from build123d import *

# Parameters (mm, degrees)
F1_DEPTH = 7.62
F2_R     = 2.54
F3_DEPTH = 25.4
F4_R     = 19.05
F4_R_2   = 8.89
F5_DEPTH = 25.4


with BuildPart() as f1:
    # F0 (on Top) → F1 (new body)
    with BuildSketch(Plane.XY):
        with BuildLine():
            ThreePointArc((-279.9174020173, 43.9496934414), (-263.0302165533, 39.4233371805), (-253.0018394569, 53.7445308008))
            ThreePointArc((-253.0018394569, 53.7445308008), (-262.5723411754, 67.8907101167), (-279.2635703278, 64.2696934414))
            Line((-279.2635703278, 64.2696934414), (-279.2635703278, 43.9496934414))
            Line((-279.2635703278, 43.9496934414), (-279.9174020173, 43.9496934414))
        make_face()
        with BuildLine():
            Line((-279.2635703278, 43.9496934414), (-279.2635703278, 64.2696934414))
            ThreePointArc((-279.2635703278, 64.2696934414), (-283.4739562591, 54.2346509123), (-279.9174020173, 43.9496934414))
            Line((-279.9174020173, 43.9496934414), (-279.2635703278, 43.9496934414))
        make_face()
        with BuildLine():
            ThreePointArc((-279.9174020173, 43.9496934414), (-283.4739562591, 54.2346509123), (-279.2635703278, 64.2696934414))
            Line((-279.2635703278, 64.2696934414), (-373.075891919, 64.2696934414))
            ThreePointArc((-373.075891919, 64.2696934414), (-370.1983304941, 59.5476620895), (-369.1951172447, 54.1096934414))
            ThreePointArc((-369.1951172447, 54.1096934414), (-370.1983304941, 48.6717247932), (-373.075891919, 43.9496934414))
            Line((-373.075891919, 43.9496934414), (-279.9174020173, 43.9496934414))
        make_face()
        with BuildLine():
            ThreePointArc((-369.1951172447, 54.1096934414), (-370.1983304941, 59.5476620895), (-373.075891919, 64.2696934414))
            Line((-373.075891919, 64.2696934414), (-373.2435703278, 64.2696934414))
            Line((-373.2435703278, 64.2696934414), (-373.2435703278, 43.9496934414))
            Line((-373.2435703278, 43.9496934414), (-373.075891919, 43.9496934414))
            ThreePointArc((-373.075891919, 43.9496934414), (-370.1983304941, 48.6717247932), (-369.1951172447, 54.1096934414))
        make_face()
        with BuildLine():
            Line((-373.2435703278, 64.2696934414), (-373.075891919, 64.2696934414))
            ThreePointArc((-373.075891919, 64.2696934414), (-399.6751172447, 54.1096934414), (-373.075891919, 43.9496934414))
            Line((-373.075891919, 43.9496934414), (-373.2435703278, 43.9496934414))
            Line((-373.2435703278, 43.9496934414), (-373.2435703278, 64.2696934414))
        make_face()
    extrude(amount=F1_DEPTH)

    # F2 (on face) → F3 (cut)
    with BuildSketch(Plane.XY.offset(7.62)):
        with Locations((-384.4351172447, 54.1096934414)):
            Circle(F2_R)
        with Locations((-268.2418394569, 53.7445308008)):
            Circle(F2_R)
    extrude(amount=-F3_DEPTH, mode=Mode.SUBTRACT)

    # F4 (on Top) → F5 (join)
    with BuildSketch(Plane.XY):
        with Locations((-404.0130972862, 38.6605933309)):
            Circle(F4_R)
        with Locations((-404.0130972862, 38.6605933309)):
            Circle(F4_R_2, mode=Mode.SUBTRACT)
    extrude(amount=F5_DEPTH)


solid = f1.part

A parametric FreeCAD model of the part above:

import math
import FreeCAD as App
import Part
import Sketcher
Q = App.Units.Quantity

doc = App.newDocument("Part")
params = doc.addObject("Spreadsheet::Sheet", "Params")
for row, (alias, value) in enumerate([
    ("sketch1_radius", "0.6 in"),
    ("pad1_length", "0.3 in"),
    ("sketch2_diameter", "0.2 in"),
    ("pocket1_length", "1 in"),
    ("sketch3_diameter", "1.5 in"),
    ("sketch3_diameter2", "0.7 in"),
    ("pad2_length", "1 in"),
], start=1):
    params.set(f"A{row}", alias)
    params.set(f"B{row}", "=" + value)
    params.setAlias(f"B{row}", alias)

body = doc.addObject("PartDesign::Body", "Body")

# Sketch on XY plane
sketch1 = body.newObject("Sketcher::SketchObject", "Sketch")
sketch1.AttachmentSupport = (doc.getObject("XY_Plane"), [""])
sketch1.MapMode = "FlatFace"
sketch1.addGeometry(Part.ArcOfCircle(Part.Circle(App.Vector(-268, 54, 0), App.Vector(0, 0, 1), 15), math.radians(0), math.radians(136)), False)
sketch1.addGeometry(Part.LineSegment(App.Vector(-279, 64, 0), App.Vector(-373, 64, 0)), False)
sketch1.addGeometry(Part.ArcOfCircle(Part.Circle(App.Vector(-384, 54, 0), App.Vector(0, 0, 1), 15), math.radians(42), math.radians(318)), False)
sketch1.addGeometry(Part.LineSegment(App.Vector(-373, 44, 0), App.Vector(-280, 44, 0)), False)
sketch1.addGeometry(Part.ArcOfCircle(Part.Circle(App.Vector(-268, 54, 0), App.Vector(0, 0, 1), 15), math.radians(-140), math.radians(0)), False)
sketch1.addConstraint(Sketcher.Constraint("Coincident", 0, 2, 1, 1))
sketch1.addConstraint(Sketcher.Constraint("Coincident", 1, 2, 2, 1))
sketch1.addConstraint(Sketcher.Constraint("Coincident", 2, 2, 3, 1))
sketch1.addConstraint(Sketcher.Constraint("Coincident", 3, 2, 4, 1))
sketch1.addConstraint(Sketcher.Constraint("Tangent", 4, 2, 0, 1))
sketch1.addConstraint(Sketcher.Constraint("Horizontal", 1))
sketch1.addConstraint(Sketcher.Constraint("Horizontal", 3))
sketch1.addConstraint(Sketcher.Constraint("Equal", 0, 2))
sketch1.addConstraint(Sketcher.Constraint("Equal", 2, 4))
sketch1.addConstraint(Sketcher.Constraint("Horizontal", 0, 3, 4, 2))
sketch1.addConstraint(Sketcher.Constraint("Vertical", 1, 2, 2, 2))
sketch1.addConstraint(Sketcher.Constraint("Radius", 0, Q("0.6 in")))
sketch1.addConstraint(Sketcher.Constraint("DistanceY", 2, 3, 0, 2, Q("0.4 in")))
sketch1.addConstraint(Sketcher.Constraint("DistanceX", 1, 2, 1, 1, 93.812322))
sketch1.addConstraint(Sketcher.Constraint("DistanceX", 3, 1, 3, 2, 93.15849))
sketch1.addConstraint(Sketcher.Constraint("DistanceX", 0, 3, -1, 1, 268.241839))
sketch1.addConstraint(Sketcher.Constraint("DistanceY", -1, 1, 0, 3, 53.744531))
sketch1.setExpression("Constraints[11]", "Params.sketch1_radius")
pad1 = body.newObject("PartDesign::Pad", "Pad")
pad1.Profile = sketch1
pad1.setExpression("Length", "Params.pad1_length")

# Sketch on XY plane
sketch2 = body.newObject("Sketcher::SketchObject", "Sketch001")
sketch2.AttachmentSupport = (doc.getObject("XY_Plane"), [""])
sketch2.MapMode = "FlatFace"
sketch2.AttachmentOffset = App.Placement(App.Vector(0, 0, 0.3 * 25.4), App.Rotation())
sketch2.addGeometry(Part.Circle(App.Vector(-384.4, 54.1, 0), App.Vector(0, 0, 1), 2.5), False)
sketch2.addGeometry(Part.Circle(App.Vector(-268.2, 53.7, 0), App.Vector(0, 0, 1), 2.5), False)
sketch2.addConstraint(Sketcher.Constraint("Equal", 0, 1))
sketch2.addConstraint(Sketcher.Constraint("Diameter", 0, Q("0.2 in")))
sketch2.addConstraint(Sketcher.Constraint("DistanceX", 1, 3, -1, 1, 268.241839))
sketch2.addConstraint(Sketcher.Constraint("DistanceY", -1, 1, 1, 3, 53.744531))
sketch2.addConstraint(Sketcher.Constraint("DistanceX", 0, 3, -1, 1, 384.435117))
sketch2.addConstraint(Sketcher.Constraint("DistanceY", -1, 1, 0, 3, 54.109693))
sketch2.setExpression("Constraints[1]", "Params.sketch2_diameter")
pocket1 = body.newObject("PartDesign::Pocket", "Pocket")
pocket1.Profile = sketch2
pocket1.setExpression("Length", "Params.pocket1_length")

# Sketch on XY plane
sketch3 = body.newObject("Sketcher::SketchObject", "Sketch002")
sketch3.AttachmentSupport = (doc.getObject("XY_Plane"), [""])
sketch3.MapMode = "FlatFace"
sketch3.addGeometry(Part.Circle(App.Vector(-404, 39, 0), App.Vector(0, 0, 1), 19), False)
sketch3.addGeometry(Part.Circle(App.Vector(-404, 39, 0), App.Vector(0, 0, 1), 9), False)
sketch3.addConstraint(Sketcher.Constraint("Coincident", 1, 3, 0, 3))
sketch3.addConstraint(Sketcher.Constraint("Diameter", 0, Q("1.5 in")))
sketch3.addConstraint(Sketcher.Constraint("Diameter", 1, Q("0.7 in")))
sketch3.addConstraint(Sketcher.Constraint("DistanceX", 0, 3, -1, 1, 404.013097))
sketch3.addConstraint(Sketcher.Constraint("DistanceY", -1, 1, 0, 3, 38.660593))
sketch3.setExpression("Constraints[1]", "Params.sketch3_diameter")
sketch3.setExpression("Constraints[2]", "Params.sketch3_diameter2")
pad2 = body.newObject("PartDesign::Pad", "Pad001")
pad2.Profile = sketch3
pad2.setExpression("Length", "Params.pad2_length")

doc.recompute()
